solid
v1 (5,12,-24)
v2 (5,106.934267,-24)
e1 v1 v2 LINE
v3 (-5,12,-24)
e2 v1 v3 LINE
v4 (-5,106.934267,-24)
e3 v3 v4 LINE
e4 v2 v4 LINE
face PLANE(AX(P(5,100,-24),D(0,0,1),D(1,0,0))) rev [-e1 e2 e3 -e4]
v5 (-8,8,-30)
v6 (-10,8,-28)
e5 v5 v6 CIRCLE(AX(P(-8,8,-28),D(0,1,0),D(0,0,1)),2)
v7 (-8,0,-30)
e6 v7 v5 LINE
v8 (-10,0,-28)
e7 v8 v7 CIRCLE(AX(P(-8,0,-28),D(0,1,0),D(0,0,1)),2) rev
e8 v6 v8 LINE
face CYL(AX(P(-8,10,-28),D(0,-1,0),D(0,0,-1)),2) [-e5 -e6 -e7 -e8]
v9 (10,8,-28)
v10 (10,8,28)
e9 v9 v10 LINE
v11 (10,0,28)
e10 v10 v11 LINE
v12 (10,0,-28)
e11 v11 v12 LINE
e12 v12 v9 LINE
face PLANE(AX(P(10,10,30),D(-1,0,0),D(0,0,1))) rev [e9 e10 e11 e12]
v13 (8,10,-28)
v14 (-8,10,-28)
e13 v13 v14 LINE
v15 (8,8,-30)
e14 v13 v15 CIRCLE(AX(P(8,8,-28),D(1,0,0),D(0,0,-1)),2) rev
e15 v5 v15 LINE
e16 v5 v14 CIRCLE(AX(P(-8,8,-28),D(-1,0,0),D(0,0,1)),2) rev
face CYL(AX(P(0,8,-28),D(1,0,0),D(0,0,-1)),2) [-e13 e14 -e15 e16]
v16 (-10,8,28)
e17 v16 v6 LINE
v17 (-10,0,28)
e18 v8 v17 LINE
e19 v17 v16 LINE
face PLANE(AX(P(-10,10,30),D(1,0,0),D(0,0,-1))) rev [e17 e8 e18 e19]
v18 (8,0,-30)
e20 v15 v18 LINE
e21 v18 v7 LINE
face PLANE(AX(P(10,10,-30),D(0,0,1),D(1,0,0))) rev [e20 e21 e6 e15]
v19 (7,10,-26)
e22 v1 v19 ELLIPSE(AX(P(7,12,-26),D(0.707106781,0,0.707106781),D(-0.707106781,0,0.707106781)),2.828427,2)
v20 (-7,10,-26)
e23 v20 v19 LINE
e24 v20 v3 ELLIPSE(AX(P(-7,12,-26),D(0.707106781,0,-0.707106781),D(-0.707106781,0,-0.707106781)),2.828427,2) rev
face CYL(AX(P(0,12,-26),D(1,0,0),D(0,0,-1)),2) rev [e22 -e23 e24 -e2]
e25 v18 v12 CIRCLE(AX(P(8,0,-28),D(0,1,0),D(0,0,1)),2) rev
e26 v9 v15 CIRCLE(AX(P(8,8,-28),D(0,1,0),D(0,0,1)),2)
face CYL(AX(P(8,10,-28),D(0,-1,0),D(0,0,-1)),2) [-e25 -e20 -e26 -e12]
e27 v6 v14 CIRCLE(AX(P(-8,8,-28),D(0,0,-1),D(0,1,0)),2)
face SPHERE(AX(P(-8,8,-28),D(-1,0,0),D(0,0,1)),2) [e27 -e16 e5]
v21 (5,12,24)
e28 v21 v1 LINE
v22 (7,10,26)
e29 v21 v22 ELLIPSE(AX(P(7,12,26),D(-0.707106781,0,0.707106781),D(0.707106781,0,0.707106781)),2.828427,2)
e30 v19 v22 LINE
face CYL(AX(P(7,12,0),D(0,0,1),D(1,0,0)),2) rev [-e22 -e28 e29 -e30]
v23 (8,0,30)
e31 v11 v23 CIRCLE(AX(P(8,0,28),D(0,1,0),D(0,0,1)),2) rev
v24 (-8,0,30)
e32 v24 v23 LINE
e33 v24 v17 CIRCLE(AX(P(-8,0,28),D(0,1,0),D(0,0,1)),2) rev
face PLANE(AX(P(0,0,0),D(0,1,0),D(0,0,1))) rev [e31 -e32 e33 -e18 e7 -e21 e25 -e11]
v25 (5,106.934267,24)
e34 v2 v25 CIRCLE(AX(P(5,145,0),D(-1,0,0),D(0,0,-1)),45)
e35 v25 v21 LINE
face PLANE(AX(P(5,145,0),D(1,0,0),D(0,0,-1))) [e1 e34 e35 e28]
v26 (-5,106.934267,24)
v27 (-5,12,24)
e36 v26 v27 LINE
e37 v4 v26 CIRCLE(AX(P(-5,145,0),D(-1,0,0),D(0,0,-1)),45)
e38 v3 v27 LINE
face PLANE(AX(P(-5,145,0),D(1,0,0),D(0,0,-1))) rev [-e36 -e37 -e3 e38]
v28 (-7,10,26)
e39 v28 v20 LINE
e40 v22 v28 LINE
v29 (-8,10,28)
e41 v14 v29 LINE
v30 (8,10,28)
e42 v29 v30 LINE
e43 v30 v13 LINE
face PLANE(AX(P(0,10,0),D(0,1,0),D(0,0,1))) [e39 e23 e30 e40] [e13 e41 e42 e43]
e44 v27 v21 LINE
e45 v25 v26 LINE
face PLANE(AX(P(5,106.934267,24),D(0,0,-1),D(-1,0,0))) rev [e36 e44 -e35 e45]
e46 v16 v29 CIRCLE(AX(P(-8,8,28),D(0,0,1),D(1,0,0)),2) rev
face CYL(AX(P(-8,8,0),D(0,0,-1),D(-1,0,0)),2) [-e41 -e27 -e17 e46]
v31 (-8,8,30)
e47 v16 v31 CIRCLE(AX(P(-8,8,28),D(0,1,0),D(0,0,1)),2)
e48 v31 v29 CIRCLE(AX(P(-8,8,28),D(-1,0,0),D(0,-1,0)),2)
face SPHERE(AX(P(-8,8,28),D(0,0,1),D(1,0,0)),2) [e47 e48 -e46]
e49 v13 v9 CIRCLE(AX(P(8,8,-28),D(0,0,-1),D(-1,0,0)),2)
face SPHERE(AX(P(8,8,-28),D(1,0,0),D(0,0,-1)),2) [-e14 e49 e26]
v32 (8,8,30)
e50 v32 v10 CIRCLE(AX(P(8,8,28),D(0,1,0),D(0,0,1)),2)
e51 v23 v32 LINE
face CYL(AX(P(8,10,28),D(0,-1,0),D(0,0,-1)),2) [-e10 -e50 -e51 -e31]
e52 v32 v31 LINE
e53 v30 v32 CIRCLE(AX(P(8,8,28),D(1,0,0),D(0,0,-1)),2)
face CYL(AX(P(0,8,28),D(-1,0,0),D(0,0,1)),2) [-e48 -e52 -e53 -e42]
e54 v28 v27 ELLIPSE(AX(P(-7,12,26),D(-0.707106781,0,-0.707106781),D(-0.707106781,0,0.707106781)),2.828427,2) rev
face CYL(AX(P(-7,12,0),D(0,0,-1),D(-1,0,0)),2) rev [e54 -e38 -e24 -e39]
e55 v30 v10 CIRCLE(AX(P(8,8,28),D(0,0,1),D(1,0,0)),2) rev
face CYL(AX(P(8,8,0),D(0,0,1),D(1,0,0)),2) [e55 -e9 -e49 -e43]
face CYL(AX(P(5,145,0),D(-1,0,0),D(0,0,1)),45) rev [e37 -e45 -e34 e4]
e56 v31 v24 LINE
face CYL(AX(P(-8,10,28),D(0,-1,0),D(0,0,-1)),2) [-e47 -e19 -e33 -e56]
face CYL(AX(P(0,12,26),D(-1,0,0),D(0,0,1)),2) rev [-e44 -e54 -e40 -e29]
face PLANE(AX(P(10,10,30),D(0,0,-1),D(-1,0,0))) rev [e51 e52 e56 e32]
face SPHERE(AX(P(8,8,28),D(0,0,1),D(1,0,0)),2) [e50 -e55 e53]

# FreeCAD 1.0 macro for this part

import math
import FreeCAD as App
import Part
import Sketcher
from FreeCAD import Vector


def edges_at(feature, points):
    """Names of the edges that pass closest to the given points."""
    edges = feature.Shape.Edges
    near = lambda p: min(range(len(edges)), key=lambda i: edges[i].distToShape(Part.Vertex(*p))[0])
    return sorted({f"Edge{near(p) + 1}" for p in points})

doc = App.newDocument("Part")
body = doc.addObject("PartDesign::Body", "Body")

sketch1 = doc.addObject("Sketcher::SketchObject", "Sketch")
body.addObject(sketch1)
sketch1.AttachmentSupport = (doc.XZ_Plane, [""])
sketch1.MapMode = "FlatFace"
sketch1.addGeometry(Part.LineSegment(Vector(-10, -30, 0), Vector(-10, 30, 0)), False)
sketch1.addGeometry(Part.LineSegment(Vector(-10, 30, 0), Vector(10, 30, 0)), False)
sketch1.addGeometry(Part.LineSegment(Vector(10, 30, 0), Vector(10, -30, 0)), False)
sketch1.addGeometry(Part.LineSegment(Vector(10, -30, 0), Vector(-10, -30, 0)), False)
sketch1.addConstraint(Sketcher.Constraint("Coincident", 0, 2, 1, 1))
sketch1.addConstraint(Sketcher.Constraint("Coincident", 1, 2, 2, 1))
sketch1.addConstraint(Sketcher.Constraint("Coincident", 2, 2, 3, 1))
sketch1.addConstraint(Sketcher.Constraint("Coincident", 3, 2, 0, 1))
sketch1.addConstraint(Sketcher.Constraint("Vertical", 0))
sketch1.addConstraint(Sketcher.Constraint("Horizontal", 1))
sketch1.addConstraint(Sketcher.Constraint("Vertical", 2))
sketch1.addConstraint(Sketcher.Constraint("Horizontal", 3))
sketch1.addConstraint(Sketcher.Constraint("Symmetric", 0, 2, 2, 2, -1, 1))
sketch1.addConstraint(Sketcher.Constraint("DistanceX", 1, 1, 1, 2, 20.0))
sketch1.addConstraint(Sketcher.Constraint("DistanceY", 0, 1, 0, 2, 60.0))
pad1 = doc.addObject("PartDesign::Pad", "Pad")
body.addObject(pad1)
pad1.Profile = sketch1
pad1.Length = 10
pad1.Reversed = True

sketch2 = doc.addObject("Sketcher::SketchObject", "Sketch001")
body.addObject(sketch2)
sketch2.AttachmentSupport = (doc.YZ_Plane, [""])
sketch2.MapMode = "FlatFace"
sketch2.addGeometry(Part.LineSegment(Vector(0, 24, 0), Vector(0, -24, 0)), False)
sketch2.addGeometry(Part.LineSegment(Vector(0, -24, 0), Vector(107, -24, 0)), False)
sketch2.addGeometry(Part.ArcOfCircle(Part.Circle(Vector(145, 0, 0), Vector(0, 0, 1), 45), math.radians(148), math.radians(212)), False)
sketch2.addGeometry(Part.LineSegment(Vector(107, 24, 0), Vector(0, 24, 0)), False)
sketch2.addConstraint(Sketcher.Constraint("Coincident", 0, 2, 1, 1))
sketch2.addConstraint(Sketcher.Constraint("Coincident", 1, 2, 2, 2))
sketch2.addConstraint(Sketcher.Constraint("Coincident", 2, 1, 3, 1))
sketch2.addConstraint(Sketcher.Constraint("Coincident", 3, 2, 0, 1))
sketch2.addConstraint(Sketcher.Constraint("Vertical", 0))
sketch2.addConstraint(Sketcher.Constraint("Horizontal", 1))
sketch2.addConstraint(Sketcher.Constraint("Horizontal", 3))
sketch2.addConstraint(Sketcher.Constraint("Symmetric", 0, 2, 3, 2, -1, 1))
sketch2.addConstraint(Sketcher.Constraint("PointOnObject", 2, 3, -1))
sketch2.addConstraint(Sketcher.Constraint("Radius", 2, 45.0))
sketch2.addConstraint(Sketcher.Constraint("DistanceY", 0, 2, 0, 1, 48.0))
sketch2.addConstraint(Sketcher.Constraint("DistanceX", -1, 1, 2, 3, 145.0))
pad2 = doc.addObject("PartDesign::Pad", "Pad001")
body.addObject(pad2)
pad2.Profile = sketch2
pad2.Length = 10
pad2.Midplane = True
doc.recompute()

fillet = doc.addObject("PartDesign::Fillet", "Fillet")
body.addObject(fillet)
fillet.Base = (pad2, edges_at(pad2, [
    (10, 10, 0),
    (0, 10, -30),
    (0, 10, -24),
    (0, 10, 24),
    (-5, 10, 0),
    (5, 10, 0),
    (-10, 10, 0),
    (-10, 5, -30),
    (10, 5, -30),
    (10, 5, 30),
    (-10, 5, 30),
    (0, 10, 30),
]))
fillet.Radius = 2

doc.recompute()
